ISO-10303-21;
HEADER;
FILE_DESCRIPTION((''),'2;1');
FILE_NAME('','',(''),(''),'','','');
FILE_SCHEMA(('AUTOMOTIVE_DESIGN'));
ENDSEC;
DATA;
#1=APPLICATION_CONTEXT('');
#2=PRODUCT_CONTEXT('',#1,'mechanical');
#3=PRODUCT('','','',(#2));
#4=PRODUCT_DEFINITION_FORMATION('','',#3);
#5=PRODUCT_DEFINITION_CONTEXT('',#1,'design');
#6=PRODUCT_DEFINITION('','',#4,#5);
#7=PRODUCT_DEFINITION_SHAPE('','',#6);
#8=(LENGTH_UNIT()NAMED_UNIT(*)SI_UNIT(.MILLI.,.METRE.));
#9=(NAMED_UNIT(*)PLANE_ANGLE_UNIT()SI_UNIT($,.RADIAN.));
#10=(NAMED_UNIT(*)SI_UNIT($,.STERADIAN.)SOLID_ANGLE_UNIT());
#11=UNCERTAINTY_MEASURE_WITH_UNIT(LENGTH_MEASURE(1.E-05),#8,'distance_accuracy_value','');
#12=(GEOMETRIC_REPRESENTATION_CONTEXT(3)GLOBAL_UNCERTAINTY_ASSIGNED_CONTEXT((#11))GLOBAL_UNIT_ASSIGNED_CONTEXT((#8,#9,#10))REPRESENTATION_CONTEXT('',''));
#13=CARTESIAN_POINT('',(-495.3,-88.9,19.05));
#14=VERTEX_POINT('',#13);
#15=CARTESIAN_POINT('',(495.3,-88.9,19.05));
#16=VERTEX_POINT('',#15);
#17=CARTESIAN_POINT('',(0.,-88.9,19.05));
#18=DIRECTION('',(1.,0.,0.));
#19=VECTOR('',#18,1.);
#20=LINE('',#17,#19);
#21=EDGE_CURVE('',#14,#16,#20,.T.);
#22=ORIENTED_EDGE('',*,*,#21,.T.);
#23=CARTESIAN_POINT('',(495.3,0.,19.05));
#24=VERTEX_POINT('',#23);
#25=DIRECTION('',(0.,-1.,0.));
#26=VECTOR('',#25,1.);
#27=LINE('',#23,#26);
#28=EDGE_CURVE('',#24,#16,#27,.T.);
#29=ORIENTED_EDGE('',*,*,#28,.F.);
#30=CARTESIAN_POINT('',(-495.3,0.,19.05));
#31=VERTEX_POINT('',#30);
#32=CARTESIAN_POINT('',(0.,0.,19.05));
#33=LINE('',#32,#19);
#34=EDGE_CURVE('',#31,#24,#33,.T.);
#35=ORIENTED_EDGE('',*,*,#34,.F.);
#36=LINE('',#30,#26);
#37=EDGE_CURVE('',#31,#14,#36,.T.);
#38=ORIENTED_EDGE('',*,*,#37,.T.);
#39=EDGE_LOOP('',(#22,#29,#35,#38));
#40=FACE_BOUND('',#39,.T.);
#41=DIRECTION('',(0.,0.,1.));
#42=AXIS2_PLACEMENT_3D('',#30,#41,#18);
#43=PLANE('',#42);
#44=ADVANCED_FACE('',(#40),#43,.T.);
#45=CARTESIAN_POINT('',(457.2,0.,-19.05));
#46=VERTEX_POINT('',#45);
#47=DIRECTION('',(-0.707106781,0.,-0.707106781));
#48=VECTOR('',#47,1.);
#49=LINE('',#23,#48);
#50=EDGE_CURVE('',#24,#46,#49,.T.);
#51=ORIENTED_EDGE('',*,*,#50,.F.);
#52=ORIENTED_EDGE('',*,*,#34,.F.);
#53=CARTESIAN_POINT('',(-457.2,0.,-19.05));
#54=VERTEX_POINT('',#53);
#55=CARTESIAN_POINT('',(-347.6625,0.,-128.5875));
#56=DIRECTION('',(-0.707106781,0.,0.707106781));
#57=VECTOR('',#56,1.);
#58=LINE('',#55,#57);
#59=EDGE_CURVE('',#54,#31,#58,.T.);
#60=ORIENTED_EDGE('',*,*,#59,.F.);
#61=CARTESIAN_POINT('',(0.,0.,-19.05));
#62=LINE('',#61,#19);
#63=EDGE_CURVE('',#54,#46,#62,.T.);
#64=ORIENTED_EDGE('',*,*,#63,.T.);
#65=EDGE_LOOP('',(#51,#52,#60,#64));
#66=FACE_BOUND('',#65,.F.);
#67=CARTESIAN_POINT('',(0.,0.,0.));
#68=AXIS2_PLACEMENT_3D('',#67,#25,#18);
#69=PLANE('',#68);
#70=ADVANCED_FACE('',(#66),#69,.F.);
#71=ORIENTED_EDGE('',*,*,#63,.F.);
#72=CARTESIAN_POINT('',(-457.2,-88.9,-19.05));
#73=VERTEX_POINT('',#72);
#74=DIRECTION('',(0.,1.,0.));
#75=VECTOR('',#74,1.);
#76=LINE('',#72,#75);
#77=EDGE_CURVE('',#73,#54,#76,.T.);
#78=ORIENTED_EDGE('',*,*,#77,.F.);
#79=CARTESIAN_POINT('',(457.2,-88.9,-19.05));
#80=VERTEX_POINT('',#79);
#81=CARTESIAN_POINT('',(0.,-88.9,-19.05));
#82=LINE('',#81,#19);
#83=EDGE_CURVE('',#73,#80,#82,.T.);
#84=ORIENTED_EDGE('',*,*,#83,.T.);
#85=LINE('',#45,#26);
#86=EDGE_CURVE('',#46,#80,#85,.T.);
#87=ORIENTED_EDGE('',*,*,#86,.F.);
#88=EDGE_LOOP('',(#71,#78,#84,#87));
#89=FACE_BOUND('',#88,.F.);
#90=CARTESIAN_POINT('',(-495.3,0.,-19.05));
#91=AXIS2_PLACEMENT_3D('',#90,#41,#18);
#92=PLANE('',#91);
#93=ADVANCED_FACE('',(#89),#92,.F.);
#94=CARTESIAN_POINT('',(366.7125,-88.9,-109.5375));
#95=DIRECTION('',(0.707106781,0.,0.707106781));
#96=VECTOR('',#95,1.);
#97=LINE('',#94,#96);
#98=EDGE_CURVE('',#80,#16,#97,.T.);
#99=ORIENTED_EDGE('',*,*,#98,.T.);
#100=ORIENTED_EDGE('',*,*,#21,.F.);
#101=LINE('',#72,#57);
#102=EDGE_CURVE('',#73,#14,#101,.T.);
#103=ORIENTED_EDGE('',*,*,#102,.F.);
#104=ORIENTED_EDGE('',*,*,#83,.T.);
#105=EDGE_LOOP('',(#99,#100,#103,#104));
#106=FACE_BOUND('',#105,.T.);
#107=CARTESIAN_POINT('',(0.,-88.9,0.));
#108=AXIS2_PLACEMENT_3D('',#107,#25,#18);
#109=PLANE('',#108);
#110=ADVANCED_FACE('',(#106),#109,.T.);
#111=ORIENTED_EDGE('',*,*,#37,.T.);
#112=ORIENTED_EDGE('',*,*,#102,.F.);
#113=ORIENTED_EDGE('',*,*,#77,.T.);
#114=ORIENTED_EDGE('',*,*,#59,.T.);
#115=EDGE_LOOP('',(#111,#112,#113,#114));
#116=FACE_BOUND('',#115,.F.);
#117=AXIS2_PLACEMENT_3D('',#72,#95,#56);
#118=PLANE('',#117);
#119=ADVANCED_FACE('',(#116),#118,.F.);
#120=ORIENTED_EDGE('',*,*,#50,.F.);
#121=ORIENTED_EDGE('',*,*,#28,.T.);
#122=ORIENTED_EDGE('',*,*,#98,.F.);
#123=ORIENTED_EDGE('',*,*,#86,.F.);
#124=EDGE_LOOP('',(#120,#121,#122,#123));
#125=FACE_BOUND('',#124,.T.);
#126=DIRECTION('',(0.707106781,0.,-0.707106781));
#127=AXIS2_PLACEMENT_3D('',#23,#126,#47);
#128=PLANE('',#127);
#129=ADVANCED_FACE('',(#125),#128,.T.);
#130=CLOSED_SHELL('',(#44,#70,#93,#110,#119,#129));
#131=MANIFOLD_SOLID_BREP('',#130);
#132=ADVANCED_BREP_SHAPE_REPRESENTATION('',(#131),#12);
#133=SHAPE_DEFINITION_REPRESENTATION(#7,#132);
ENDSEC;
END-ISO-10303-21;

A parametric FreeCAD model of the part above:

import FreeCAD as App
import Part
import Sketcher
Q = App.Units.Quantity

doc = App.newDocument("Part")
body = doc.addObject("PartDesign::Body", "Body")

# Sketch on XZ plane
sketch1 = body.newObject("Sketcher::SketchObject", "Sketch")
sketch1.AttachmentSupport = (doc.getObject("XZ_Plane"), [""])
sketch1.MapMode = "FlatFace"
sketch1.addGeometry(Part.LineSegment(App.Vector(-495.3, 19.05, 0), App.Vector(-495.3, -19.05, 0)), False)
sketch1.addGeometry(Part.LineSegment(App.Vector(-495.3, -19.05, 0), App.Vector(495.3, -19.05, 0)), False)
sketch1.addGeometry(Part.LineSegment(App.Vector(495.3, -19.05, 0), App.Vector(495.3, 19.05, 0)), False)
sketch1.addGeometry(Part.LineSegment(App.Vector(495.3, 19.05, 0), App.Vector(-495.3, 19.05, 0)), False)
sketch1.addConstraint(Sketcher.Constraint("Coincident", 0, 2, 1, 1))
sketch1.addConstraint(Sketcher.Constraint("Coincident", 1, 2, 2, 1))
sketch1.addConstraint(Sketcher.Constraint("Coincident", 2, 2, 3, 1))
sketch1.addConstraint(Sketcher.Constraint("Coincident", 3, 2, 0, 1))
sketch1.addConstraint(Sketcher.Constraint("Vertical", 0))
sketch1.addConstraint(Sketcher.Constraint("Horizontal", 1))
sketch1.addConstraint(Sketcher.Constraint("Vertical", 2))
sketch1.addConstraint(Sketcher.Constraint("Horizontal", 3))
sketch1.addConstraint(Sketcher.Constraint("Symmetric", 0, 2, 2, 2, -1, 1))
sketch1.addConstraint(Sketcher.Constraint("DistanceX", 1, 1, 1, 2, Q("39 in")))
sketch1.addConstraint(Sketcher.Constraint("DistanceY", 0, 2, 0, 1, Q("1.5 in")))
pad1 = body.newObject("PartDesign::Pad", "Pad")
pad1.Profile = sketch1
pad1.Length = Q("3.5 in")

# Sketch on XZ plane
sketch2 = body.newObject("Sketcher::SketchObject", "Sketch001")
sketch2.AttachmentSupport = (doc.getObject("XZ_Plane"), [""])
sketch2.MapMode = "FlatFace"
sketch2.AttachmentOffset = App.Placement(App.Vector(0, 0, 3.5 * 25.4), App.Rotation())
sketch2.addGeometry(Part.LineSegment(App.Vector(-457.2, -19.05, 0), App.Vector(-495.3, 19.05, 0)), False)
sketch2.addGeometry(Part.LineSegment(App.Vector(-495.3, 19.05, 0), App.Vector(-495.3, -19.05, 0)), False)
sketch2.addGeometry(Part.LineSegment(App.Vector(-495.3, -19.05, 0), App.Vector(-457.2, -19.05, 0)), False)
sketch2.addConstraint(Sketcher.Constraint("Coincident", 0, 2, 1, 1))
sketch2.addConstraint(Sketcher.Constraint("Coincident", 1, 2, 2, 1))
sketch2.addConstraint(Sketcher.Constraint("Coincident", 2, 2, 0, 1))
sketch2.addConstraint(Sketcher.Constraint("Vertical", 1))
sketch2.addConstraint(Sketcher.Constraint("Horizontal", 2))
sketch2.addConstraint(Sketcher.Constraint("Equal", 2, 1))
sketch2.addConstraint(Sketcher.Constraint("DistanceX", 2, 1, 2, 2, Q("1.5 in")))
sketch2.addConstraint(Sketcher.Constraint("DistanceX", 2, 2, -1, 1, Q("18 in")))
sketch2.addConstraint(Sketcher.Constraint("DistanceY", -1, 1, 0, 2, Q("0.75 in")))
pocket1 = body.newObject("PartDesign::Pocket", "Pocket")
pocket1.Profile = sketch2
pocket1.Type = "ThroughAll"

# Sketch on XZ plane
sketch3 = body.newObject("Sketcher::SketchObject", "Sketch002")
sketch3.AttachmentSupport = (doc.getObject("XZ_Plane"), [""])
sketch3.MapMode = "FlatFace"
sketch3.addGeometry(Part.LineSegment(App.Vector(495.3, -19.05, 0), App.Vector(495.3, 19.05, 0)), False)
sketch3.addGeometry(Part.LineSegment(App.Vector(495.3, 19.05, 0), App.Vector(457.2, -19.05, 0)), False)
sketch3.addGeometry(Part.LineSegment(App.Vector(457.2, -19.05, 0), App.Vector(495.3, -19.05, 0)), False)
sketch3.addConstraint(Sketcher.Constraint("Coincident", 0, 2, 1, 1))
sketch3.addConstraint(Sketcher.Constraint("Coincident", 1, 2, 2, 1))
sketch3.addConstraint(Sketcher.Constraint("Coincident", 2, 2, 0, 1))
sketch3.addConstraint(Sketcher.Constraint("Vertical", 0))
sketch3.addConstraint(Sketcher.Constraint("Horizontal", 2))
sketch3.addConstraint(Sketcher.Constraint("Equal", 2, 0))
sketch3.addConstraint(Sketcher.Constraint("DistanceX", 2, 1, 2, 2, Q("1.5 in")))
sketch3.addConstraint(Sketcher.Constraint("DistanceX", -1, 1, 1, 2, Q("18 in")))
sketch3.addConstraint(Sketcher.Constraint("DistanceY", -1, 1, 0, 2, Q("0.75 in")))
pocket2 = body.newObject("PartDesign::Pocket", "Pocket001")
pocket2.Profile = sketch3
pocket2.Type = "ThroughAll"
pocket2.Reversed = True

doc.recompute()
